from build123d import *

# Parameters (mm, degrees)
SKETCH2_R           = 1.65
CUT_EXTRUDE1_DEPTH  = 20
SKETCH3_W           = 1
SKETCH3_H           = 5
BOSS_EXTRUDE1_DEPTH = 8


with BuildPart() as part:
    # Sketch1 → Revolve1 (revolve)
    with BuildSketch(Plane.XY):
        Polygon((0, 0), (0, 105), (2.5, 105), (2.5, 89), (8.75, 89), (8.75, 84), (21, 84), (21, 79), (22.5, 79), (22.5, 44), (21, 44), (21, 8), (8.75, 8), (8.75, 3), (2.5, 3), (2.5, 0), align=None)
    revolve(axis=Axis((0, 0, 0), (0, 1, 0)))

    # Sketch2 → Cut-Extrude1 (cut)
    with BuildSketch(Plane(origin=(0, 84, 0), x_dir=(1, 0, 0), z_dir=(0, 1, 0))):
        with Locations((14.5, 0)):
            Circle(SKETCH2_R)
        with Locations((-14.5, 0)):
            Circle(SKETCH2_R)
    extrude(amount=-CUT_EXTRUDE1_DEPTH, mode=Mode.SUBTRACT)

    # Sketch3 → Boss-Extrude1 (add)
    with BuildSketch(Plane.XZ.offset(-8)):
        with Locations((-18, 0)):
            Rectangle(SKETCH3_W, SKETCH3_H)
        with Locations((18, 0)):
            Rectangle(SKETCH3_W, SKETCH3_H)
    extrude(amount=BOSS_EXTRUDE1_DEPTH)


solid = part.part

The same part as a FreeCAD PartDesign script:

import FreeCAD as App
import Part
import Sketcher

V = App.Vector

doc = App.newDocument("Part")
body = doc.addObject("PartDesign::Body", "Body")

sketch1 = doc.addObject("Sketcher::SketchObject", "Sketch")
body.addObject(sketch1)
sketch1.AttachmentSupport = (doc.XY_Plane, [""])
sketch1.MapMode = "FlatFace"
sketch1.addGeometry(Part.LineSegment(V(0, 105, 0), V(0, 0, 0)), False)
sketch1.addGeometry(Part.LineSegment(V(0, 0, 0), V(2.5, 0, 0)), False)
sketch1.addGeometry(Part.LineSegment(V(2.5, 0, 0), V(2.5, 3, 0)), False)
sketch1.addGeometry(Part.LineSegment(V(2.5, 3, 0), V(8.8, 3, 0)), False)
sketch1.addGeometry(Part.LineSegment(V(8.8, 3, 0), V(8.8, 8, 0)), False)
sketch1.addGeometry(Part.LineSegment(V(8.8, 8, 0), V(21, 8, 0)), False)
sketch1.addGeometry(Part.LineSegment(V(21, 8, 0), V(21, 44, 0)), False)
sketch1.addGeometry(Part.LineSegment(V(21, 44, 0), V(22.5, 44, 0)), False)
sketch1.addGeometry(Part.LineSegment(V(22.5, 44, 0), V(22.5, 79, 0)), False)
sketch1.addGeometry(Part.LineSegment(V(22.5, 79, 0), V(21, 79, 0)), False)
sketch1.addGeometry(Part.LineSegment(V(21, 79, 0), V(21, 84, 0)), False)
sketch1.addGeometry(Part.LineSegment(V(21, 84, 0), V(8.8, 84, 0)), False)
sketch1.addGeometry(Part.LineSegment(V(8.8, 84, 0), V(8.8, 89, 0)), False)
sketch1.addGeometry(Part.LineSegment(V(8.8, 89, 0), V(2.5, 89, 0)), False)
sketch1.addGeometry(Part.LineSegment(V(2.5, 89, 0), V(2.5, 105, 0)), False)
sketch1.addGeometry(Part.LineSegment(V(2.5, 105, 0), V(0, 105, 0)), False)
sketch1.addConstraint(Sketcher.Constraint("Coincident", 0, 2, 1, 1))
sketch1.addConstraint(Sketcher.Constraint("Coincident", 1, 2, 2, 1))
sketch1.addConstraint(Sketcher.Constraint("Coincident", 2, 2, 3, 1))
sketch1.addConstraint(Sketcher.Constraint("Coincident", 3, 2, 4, 1))
sketch1.addConstraint(Sketcher.Constraint("Coincident", 4, 2, 5, 1))
sketch1.addConstraint(Sketcher.Constraint("Coincident", 5, 2, 6, 1))
sketch1.addConstraint(Sketcher.Constraint("Coincident", 6, 2, 7, 1))
sketch1.addConstraint(Sketcher.Constraint("Coincident", 7, 2, 8, 1))
sketch1.addConstraint(Sketcher.Constraint("Coincident", 8, 2, 9, 1))
sketch1.addConstraint(Sketcher.Constraint("Coincident", 9, 2, 10, 1))
sketch1.addConstraint(Sketcher.Constraint("Coincident", 10, 2, 11, 1))
sketch1.addConstraint(Sketcher.Constraint("Coincident", 11, 2, 12, 1))
sketch1.addConstraint(Sketcher.Constraint("Coincident", 12, 2, 13, 1))
sketch1.addConstraint(Sketcher.Constraint("Coincident", 13, 2, 14, 1))
sketch1.addConstraint(Sketcher.Constraint("Coincident", 14, 2, 15, 1))
sketch1.addConstraint(Sketcher.Constraint("Coincident", 15, 2, 0, 1))
sketch1.addConstraint(Sketcher.Constraint("Vertical", 0))
sketch1.addConstraint(Sketcher.Constraint("Horizontal", 1))
sketch1.addConstraint(Sketcher.Constraint("Vertical", 2))
sketch1.addConstraint(Sketcher.Constraint("Horizontal", 3))
sketch1.addConstraint(Sketcher.Constraint("Vertical", 4))
sketch1.addConstraint(Sketcher.Constraint("Horizontal", 5))
sketch1.addConstraint(Sketcher.Constraint("Vertical", 6))
sketch1.addConstraint(Sketcher.Constraint("Horizontal", 7))
sketch1.addConstraint(Sketcher.Constraint("Vertical", 8))
sketch1.addConstraint(Sketcher.Constraint("Horizontal", 9))
sketch1.addConstraint(Sketcher.Constraint("Vertical", 10))
sketch1.addConstraint(Sketcher.Constraint("Horizontal", 11))
sketch1.addConstraint(Sketcher.Constraint("Vertical", 12))
sketch1.addConstraint(Sketcher.Constraint("Horizontal", 13))
sketch1.addConstraint(Sketcher.Constraint("Vertical", 14))
sketch1.addConstraint(Sketcher.Constraint("Horizontal", 15))
sketch1.addConstraint(Sketcher.Constraint("Coincident", 0, 2, -1, 1))
sketch1.addConstraint(Sketcher.Constraint("Vertical", 6, 2, 9, 2))
sketch1.addConstraint(Sketcher.Constraint("Vertical", 4, 2, 11, 2))
sketch1.addConstraint(Sketcher.Constraint("Vertical", 2, 2, 13, 2))
sketch1.addConstraint(Sketcher.Constraint("Equal", 4, 10))
sketch1.addConstraint(Sketcher.Constraint("Equal", 10, 12))
sketch1.addConstraint(Sketcher.Constraint("DistanceY", 0, 2, 0, 1, 105.0))
sketch1.addConstraint(Sketcher.Constraint("DistanceY", 2, 1, 2, 2, 3.0))
sketch1.addConstraint(Sketcher.Constraint("DistanceY", 4, 1, 4, 2, 5.0))
sketch1.addConstraint(Sketcher.Constraint("DistanceY", 6, 1, 6, 2, 36.0))
sketch1.addConstraint(Sketcher.Constraint("DistanceY", 8, 1, 8, 2, 35.0))
sketch1.addConstraint(Sketcher.Constraint("DistanceX", 1, 1, 1, 2, 2.5))
sketch1.addConstraint(Sketcher.Constraint("DistanceX", 7, 1, 7, 2, 1.5))
sketch1.addConstraint(Sketcher.Constraint("DistanceX", -1, 1, 5, 2, 21.0))
sketch1.addConstraint(Sketcher.Constraint("DistanceX", 3, 1, 3, 2, 6.25))
revolution = doc.addObject("PartDesign::Revolution", "Revolution")
body.addObject(revolution)
revolution.Profile = sketch1
revolution.ReferenceAxis = (sketch1, ["V_Axis"])
revolution.Angle = 360

sketch2 = doc.addObject("Sketcher::SketchObject", "Sketch001")
body.addObject(sketch2)
sketch2.AttachmentSupport = (doc.XZ_Plane, [""])
sketch2.MapMode = "FlatFace"
sketch2.AttachmentOffset = App.Placement(V(0, 0, -84), App.Rotation())
sketch2.addGeometry(Part.Circle(V(14.5, 0, 0), V(0, 0, 1), 1.6), False)
sketch2.addGeometry(Part.Circle(V(-14.5, 0, 0), V(0, 0, 1), 1.6), False)
sketch2.addConstraint(Sketcher.Constraint("Equal", 0, 1))
sketch2.addConstraint(Sketcher.Constraint("Symmetric", 0, 3, 1, 3, -1, 1))
sketch2.addConstraint(Sketcher.Constraint("PointOnObject", 0, 3, -1))
sketch2.addConstraint(Sketcher.Constraint("Diameter", 0, 3.3))
sketch2.addConstraint(Sketcher.Constraint("DistanceX", 1, 3, 0, 3, 29.0))
pocket1 = doc.addObject("PartDesign::Pocket", "Pocket")
body.addObject(pocket1)
pocket1.Profile = sketch2
pocket1.Length = 20
pocket1.Reversed = True

sketch3 = doc.addObject("Sketcher::SketchObject", "Sketch002")
body.addObject(sketch3)
sketch3.AttachmentSupport = (doc.XZ_Plane, [""])
sketch3.MapMode = "FlatFace"
sketch3.AttachmentOffset = App.Placement(V(0, 0, -8), App.Rotation())
sketch3.addGeometry(Part.LineSegment(V(-18.5, 2.5, 0), V(-18.5, -2.5, 0)), False)
sketch3.addGeometry(Part.LineSegment(V(-18.5, -2.5, 0), V(-17.5, -2.5, 0)), False)
sketch3.addGeometry(Part.LineSegment(V(-17.5, -2.5, 0), V(-17.5, 2.5, 0)), False)
sketch3.addGeometry(Part.LineSegment(V(-17.5, 2.5, 0), V(-18.5, 2.5, 0)), False)
sketch3.addGeometry(Part.LineSegment(V(17.5, 2.5, 0), V(17.5, -2.5, 0)), False)
sketch3.addGeometry(Part.LineSegment(V(17.5, -2.5, 0), V(18.5, -2.5, 0)), False)
sketch3.addGeometry(Part.LineSegment(V(18.5, -2.5, 0), V(18.5, 2.5, 0)), False)
sketch3.addGeometry(Part.LineSegment(V(18.5, 2.5, 0), V(17.5, 2.5, 0)), False)
sketch3.addConstraint(Sketcher.Constraint("Coincident", 0, 2, 1, 1))
sketch3.addConstraint(Sketcher.Constraint("Coincident", 1, 2, 2, 1))
sketch3.addConstraint(Sketcher.Constraint("Coincident", 2, 2, 3, 1))
sketch3.addConstraint(Sketcher.Constraint("Coincident", 3, 2, 0, 1))
sketch3.addConstraint(Sketcher.Constraint("Coincident", 4, 2, 5, 1))
sketch3.addConstraint(Sketcher.Constraint("Coincident", 5, 2, 6, 1))
sketch3.addConstraint(Sketcher.Constraint("Coincident", 6, 2, 7, 1))
sketch3.addConstraint(Sketcher.Constraint("Coincident", 7, 2, 4, 1))
sketch3.addConstraint(Sketcher.Constraint("Vertical", 0))
sketch3.addConstraint(Sketcher.Constraint("Horizontal", 1))
sketch3.addConstraint(Sketcher.Constraint("Vertical", 2))
sketch3.addConstraint(Sketcher.Constraint("Horizontal", 3))
sketch3.addConstraint(Sketcher.Constraint("Vertical", 4))
sketch3.addConstraint(Sketcher.Constraint("Horizontal", 5))
sketch3.addConstraint(Sketcher.Constraint("Vertical", 6))
sketch3.addConstraint(Sketcher.Constraint("Horizontal", 7))
sketch3.addConstraint(Sketcher.Constraint("Symmetric", 2, 2, 4, 2, -1, 1))
sketch3.addConstraint(Sketcher.Constraint("Symmetric", 0, 2, 6, 2, -1, 1))
sketch3.addConstraint(Sketcher.Constraint("Horizontal", 1, 2, 4, 2))
sketch3.addConstraint(Sketcher.Constraint("DistanceX", 1, 1, 1, 2, 1.0))
sketch3.addConstraint(Sketcher.Constraint("DistanceY", 0, 2, 0, 1, 5.0))
sketch3.addConstraint(Sketcher.Constraint("DistanceX", 1, 2, 4, 2, 35.0))
pad1 = doc.addObject("PartDesign::Pad", "Pad")
body.addObject(pad1)
pad1.Profile = sketch3
pad1.Length = 8

doc.recompute()
